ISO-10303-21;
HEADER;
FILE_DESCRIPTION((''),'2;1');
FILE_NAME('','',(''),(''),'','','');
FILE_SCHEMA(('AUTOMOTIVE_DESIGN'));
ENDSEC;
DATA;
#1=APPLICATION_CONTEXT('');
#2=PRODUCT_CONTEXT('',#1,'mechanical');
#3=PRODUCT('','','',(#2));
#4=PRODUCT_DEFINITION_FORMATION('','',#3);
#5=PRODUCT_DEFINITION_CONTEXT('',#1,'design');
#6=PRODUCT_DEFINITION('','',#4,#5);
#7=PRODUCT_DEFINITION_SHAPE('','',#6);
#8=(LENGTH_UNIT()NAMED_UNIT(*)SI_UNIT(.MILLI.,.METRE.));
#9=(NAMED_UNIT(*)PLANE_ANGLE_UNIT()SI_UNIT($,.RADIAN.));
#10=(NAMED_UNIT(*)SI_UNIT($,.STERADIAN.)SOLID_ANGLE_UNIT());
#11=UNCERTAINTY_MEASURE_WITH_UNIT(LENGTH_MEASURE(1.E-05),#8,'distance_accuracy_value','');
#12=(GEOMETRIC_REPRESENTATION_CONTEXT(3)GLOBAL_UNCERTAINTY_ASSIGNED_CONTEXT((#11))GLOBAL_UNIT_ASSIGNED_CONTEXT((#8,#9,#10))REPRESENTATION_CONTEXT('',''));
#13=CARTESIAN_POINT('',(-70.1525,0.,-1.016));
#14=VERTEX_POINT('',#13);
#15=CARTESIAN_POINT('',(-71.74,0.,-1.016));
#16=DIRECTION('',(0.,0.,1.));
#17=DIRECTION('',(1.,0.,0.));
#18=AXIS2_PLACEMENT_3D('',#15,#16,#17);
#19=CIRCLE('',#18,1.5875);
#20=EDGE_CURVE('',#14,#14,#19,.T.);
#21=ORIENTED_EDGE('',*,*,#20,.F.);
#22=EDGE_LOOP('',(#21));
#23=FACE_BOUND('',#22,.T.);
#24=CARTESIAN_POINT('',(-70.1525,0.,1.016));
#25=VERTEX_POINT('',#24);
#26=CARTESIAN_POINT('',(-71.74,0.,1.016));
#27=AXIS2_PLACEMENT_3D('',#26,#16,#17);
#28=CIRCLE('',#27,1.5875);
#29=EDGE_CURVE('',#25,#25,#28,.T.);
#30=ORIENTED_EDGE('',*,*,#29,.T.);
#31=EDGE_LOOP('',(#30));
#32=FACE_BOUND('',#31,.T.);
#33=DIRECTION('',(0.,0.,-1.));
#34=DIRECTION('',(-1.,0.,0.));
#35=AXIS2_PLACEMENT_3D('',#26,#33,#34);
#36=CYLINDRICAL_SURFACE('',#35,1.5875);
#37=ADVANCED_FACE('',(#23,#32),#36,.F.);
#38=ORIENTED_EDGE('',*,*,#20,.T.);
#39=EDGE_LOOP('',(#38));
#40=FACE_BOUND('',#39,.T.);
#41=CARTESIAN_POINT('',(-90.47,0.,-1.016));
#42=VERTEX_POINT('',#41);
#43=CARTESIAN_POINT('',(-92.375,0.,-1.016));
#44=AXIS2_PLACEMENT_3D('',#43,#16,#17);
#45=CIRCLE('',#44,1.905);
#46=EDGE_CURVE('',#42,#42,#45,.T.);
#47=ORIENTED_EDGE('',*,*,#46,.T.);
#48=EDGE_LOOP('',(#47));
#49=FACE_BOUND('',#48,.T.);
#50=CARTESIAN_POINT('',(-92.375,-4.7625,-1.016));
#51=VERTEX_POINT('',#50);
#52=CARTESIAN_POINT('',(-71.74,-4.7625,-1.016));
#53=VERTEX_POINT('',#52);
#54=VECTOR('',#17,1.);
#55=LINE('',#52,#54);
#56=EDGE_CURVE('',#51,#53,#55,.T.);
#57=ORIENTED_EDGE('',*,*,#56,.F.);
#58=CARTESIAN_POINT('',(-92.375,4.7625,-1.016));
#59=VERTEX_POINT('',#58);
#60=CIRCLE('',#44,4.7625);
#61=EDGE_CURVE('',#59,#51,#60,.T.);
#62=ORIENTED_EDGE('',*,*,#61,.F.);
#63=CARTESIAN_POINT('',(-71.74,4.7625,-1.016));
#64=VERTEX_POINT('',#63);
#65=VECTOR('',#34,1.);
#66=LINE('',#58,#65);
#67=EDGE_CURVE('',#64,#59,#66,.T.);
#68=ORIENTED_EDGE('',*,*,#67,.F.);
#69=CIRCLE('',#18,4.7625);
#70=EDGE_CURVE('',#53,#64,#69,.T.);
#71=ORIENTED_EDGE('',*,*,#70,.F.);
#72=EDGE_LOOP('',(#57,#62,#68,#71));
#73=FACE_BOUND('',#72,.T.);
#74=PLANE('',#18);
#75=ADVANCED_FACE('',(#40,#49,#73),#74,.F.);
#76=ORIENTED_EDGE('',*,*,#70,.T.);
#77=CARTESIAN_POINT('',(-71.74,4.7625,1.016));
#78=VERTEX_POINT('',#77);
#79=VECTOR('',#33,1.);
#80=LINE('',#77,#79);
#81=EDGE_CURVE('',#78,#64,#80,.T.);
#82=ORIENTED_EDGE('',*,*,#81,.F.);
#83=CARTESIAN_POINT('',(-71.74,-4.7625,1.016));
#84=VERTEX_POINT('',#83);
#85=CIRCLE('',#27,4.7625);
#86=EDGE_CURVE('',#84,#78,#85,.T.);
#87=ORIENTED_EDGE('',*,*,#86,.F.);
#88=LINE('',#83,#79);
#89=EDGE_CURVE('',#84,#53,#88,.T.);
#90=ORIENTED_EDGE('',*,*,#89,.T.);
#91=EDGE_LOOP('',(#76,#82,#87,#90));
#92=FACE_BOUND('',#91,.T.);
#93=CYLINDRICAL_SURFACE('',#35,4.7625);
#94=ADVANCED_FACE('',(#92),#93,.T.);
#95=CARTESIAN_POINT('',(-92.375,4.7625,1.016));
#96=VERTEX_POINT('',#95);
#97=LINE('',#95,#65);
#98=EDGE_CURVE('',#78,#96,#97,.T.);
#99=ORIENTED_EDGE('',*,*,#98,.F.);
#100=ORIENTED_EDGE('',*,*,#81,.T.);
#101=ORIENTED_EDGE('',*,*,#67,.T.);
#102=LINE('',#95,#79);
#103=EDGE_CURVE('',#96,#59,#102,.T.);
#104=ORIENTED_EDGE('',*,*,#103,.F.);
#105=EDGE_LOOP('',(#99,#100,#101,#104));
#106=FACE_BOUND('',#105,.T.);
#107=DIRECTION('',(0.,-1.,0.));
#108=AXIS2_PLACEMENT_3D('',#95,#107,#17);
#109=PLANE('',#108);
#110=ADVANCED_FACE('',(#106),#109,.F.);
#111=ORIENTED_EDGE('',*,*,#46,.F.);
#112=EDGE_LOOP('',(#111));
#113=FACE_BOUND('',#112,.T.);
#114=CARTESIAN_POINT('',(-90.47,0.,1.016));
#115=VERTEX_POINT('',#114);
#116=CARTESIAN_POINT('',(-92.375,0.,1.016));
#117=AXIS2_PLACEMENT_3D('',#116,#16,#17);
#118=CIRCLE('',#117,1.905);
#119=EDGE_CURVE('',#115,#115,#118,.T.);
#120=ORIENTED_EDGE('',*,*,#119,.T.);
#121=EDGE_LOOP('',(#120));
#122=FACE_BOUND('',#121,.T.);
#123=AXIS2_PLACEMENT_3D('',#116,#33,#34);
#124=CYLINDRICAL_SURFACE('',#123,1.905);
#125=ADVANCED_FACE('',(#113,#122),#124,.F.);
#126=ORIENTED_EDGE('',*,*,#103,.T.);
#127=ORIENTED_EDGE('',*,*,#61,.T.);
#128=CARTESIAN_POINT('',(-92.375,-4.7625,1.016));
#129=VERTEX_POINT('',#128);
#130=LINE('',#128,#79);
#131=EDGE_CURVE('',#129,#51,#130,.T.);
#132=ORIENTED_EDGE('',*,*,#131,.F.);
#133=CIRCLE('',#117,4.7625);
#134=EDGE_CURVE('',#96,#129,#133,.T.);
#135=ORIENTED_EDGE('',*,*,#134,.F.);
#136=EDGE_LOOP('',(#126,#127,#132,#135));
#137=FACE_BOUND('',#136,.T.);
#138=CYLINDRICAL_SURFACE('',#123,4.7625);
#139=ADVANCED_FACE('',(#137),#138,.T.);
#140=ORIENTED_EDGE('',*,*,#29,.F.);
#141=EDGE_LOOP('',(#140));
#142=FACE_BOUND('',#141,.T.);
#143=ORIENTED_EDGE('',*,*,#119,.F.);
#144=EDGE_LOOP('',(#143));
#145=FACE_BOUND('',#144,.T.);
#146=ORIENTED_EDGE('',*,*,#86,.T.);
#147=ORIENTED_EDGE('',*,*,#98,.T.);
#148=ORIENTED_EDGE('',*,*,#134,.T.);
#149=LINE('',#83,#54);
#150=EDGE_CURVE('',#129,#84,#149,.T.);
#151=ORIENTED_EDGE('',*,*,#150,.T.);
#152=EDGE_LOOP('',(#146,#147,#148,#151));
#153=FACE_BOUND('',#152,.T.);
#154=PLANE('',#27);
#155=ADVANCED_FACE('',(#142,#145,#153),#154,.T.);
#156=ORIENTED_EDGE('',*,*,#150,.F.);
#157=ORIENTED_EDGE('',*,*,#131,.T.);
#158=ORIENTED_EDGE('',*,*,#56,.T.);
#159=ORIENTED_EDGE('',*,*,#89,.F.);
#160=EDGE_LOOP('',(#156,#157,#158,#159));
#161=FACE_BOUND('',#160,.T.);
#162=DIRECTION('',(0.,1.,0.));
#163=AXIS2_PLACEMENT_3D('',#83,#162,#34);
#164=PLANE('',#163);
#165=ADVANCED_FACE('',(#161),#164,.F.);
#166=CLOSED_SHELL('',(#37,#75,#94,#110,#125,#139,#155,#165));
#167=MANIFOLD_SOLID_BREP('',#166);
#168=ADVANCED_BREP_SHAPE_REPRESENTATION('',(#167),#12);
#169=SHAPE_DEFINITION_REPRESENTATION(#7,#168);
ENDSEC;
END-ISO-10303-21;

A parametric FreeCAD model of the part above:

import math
import FreeCAD as App
import Part
import Sketcher
Q = App.Units.Quantity

doc = App.newDocument("Part")
body = doc.addObject("PartDesign::Body", "Body")

# Sketch on XY plane
sketch1 = body.newObject("Sketcher::SketchObject", "Sketch")
sketch1.AttachmentSupport = (doc.getObject("XY_Plane"), [""])
sketch1.MapMode = "FlatFace"
sketch1.addGeometry([
    Part.LineSegment(App.Vector(-92.4, -4.8, 0), App.Vector(-71.7, -4.8, 0)),  # 0
    Part.ArcOfCircle(Part.Circle(App.Vector(-71.7, 0, 0), App.Vector(0, 0, 1), 4.8), math.radians(-90), math.radians(90)),  # 1
    Part.LineSegment(App.Vector(-71.7, 4.8, 0), App.Vector(-92.4, 4.8, 0)),  # 2
    Part.ArcOfCircle(Part.Circle(App.Vector(-92.4, 0, 0), App.Vector(0, 0, 1), 4.8), math.radians(90), math.radians(270)),  # 3
    Part.Circle(App.Vector(-71.7, 0, 0), App.Vector(0, 0, 1), 1.6),  # 4
    Part.Circle(App.Vector(-92.4, 0, 0), App.Vector(0, 0, 1), 1.9),  # 5
], False)
sketch1.addConstraint([
    Sketcher.Constraint("Tangent", 0, 2, 1, 1),
    Sketcher.Constraint("Tangent", 1, 2, 2, 1),
    Sketcher.Constraint("Tangent", 2, 2, 3, 1),
    Sketcher.Constraint("Tangent", 3, 2, 0, 1),
    Sketcher.Constraint("Horizontal", 0),
    Sketcher.Constraint("Horizontal", 2),
    Sketcher.Constraint("Coincident", 4, 3, 1, 3),
    Sketcher.Constraint("Coincident", 5, 3, 3, 3),
    Sketcher.Constraint("PointOnObject", 1, 3, -1),
    Sketcher.Constraint("Diameter", 5, Q("0.15 in")),
    Sketcher.Constraint("Diameter", 4, Q("0.125 in")),
    Sketcher.Constraint("Radius", 1, Q("0.1875 in")),
    Sketcher.Constraint("DistanceX", 0, 1, 0, 2, Q("20.635 mm")),
    Sketcher.Constraint("DistanceX", 1, 3, -1, 1, Q("71.74 mm")),
])
pad1 = body.newObject("PartDesign::Pad", "Pad")
pad1.Profile = sketch1
pad1.Length = Q("0.08 in")
pad1.Midplane = True

doc.recompute()
